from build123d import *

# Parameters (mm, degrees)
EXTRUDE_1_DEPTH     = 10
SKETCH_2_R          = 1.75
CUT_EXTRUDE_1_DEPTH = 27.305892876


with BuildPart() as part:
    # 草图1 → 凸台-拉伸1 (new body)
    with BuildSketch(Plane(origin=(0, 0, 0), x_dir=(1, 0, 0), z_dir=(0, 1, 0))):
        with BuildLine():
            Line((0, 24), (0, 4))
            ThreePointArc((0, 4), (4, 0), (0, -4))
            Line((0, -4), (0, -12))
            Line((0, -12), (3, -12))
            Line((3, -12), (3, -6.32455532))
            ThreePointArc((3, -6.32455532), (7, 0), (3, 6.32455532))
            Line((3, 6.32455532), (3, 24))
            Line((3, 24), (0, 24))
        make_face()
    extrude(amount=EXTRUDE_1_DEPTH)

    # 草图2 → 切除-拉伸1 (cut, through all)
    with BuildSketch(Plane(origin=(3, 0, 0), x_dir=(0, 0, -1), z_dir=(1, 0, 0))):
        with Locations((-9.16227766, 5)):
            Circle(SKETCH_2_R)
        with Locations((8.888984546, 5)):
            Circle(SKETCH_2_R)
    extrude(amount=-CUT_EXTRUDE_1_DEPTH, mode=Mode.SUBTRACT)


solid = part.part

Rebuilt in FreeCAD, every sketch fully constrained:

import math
import FreeCAD as App
import Part
import Sketcher
Q = App.Units.Quantity

doc = App.newDocument("Part")
body = doc.addObject("PartDesign::Body", "Body")

sketch1 = body.newObject("Sketcher::SketchObject", "Sketch")
sketch1.AttachmentSupport = (doc.getObject("XZ_Plane"), [""])
sketch1.MapMode = "FlatFace"
sketch1.addGeometry([
    Part.LineSegment(App.Vector(0, -24, 0), App.Vector(0, -4, 0)),
    Part.ArcOfCircle(Part.Circle(App.Vector(0, 0, 0), App.Vector(0, 0, 1), 4), math.radians(-90), math.radians(90)),
    Part.LineSegment(App.Vector(0, 4, 0), App.Vector(0, 12, 0)),
    Part.LineSegment(App.Vector(0, 12, 0), App.Vector(3, 12, 0)),
    Part.LineSegment(App.Vector(3, 12, 0), App.Vector(3, 6.3, 0)),
    Part.ArcOfCircle(Part.Circle(App.Vector(0, 0, 0), App.Vector(0, 0, 1), 7), math.radians(-65), math.radians(65)),
    Part.LineSegment(App.Vector(3, -6.3, 0), App.Vector(3, -24, 0)),
    Part.LineSegment(App.Vector(3, -24, 0), App.Vector(0, -24, 0)),
], False)
sketch1.addConstraint([
    Sketcher.Constraint("Coincident", 0, 2, 1, 1),
    Sketcher.Constraint("Coincident", 1, 2, 2, 1),
    Sketcher.Constraint("Coincident", 2, 2, 3, 1),
    Sketcher.Constraint("Coincident", 3, 2, 4, 1),
    Sketcher.Constraint("Coincident", 4, 2, 5, 2),
    Sketcher.Constraint("Coincident", 5, 1, 6, 1),
    Sketcher.Constraint("Coincident", 6, 2, 7, 1),
    Sketcher.Constraint("Coincident", 7, 2, 0, 1),
    Sketcher.Constraint("Vertical", 0),
    Sketcher.Constraint("Vertical", 2),
    Sketcher.Constraint("Horizontal", 3),
    Sketcher.Constraint("Vertical", 4),
    Sketcher.Constraint("Vertical", 6),
    Sketcher.Constraint("Horizontal", 7),
    Sketcher.Constraint("Coincident", 1, 3, -1, 1),
    Sketcher.Constraint("Coincident", 5, 3, -1, 1),
    Sketcher.Constraint("PointOnObject", 0, 2, -2),
    Sketcher.Constraint("PointOnObject", 1, 2, -2),
    Sketcher.Constraint("Vertical", 4, 2, 5, 1),
    Sketcher.Constraint("Radius", 1, Q("4 mm")),
    Sketcher.Constraint("Radius", 5, Q("7 mm")),
    Sketcher.Constraint("DistanceX", 3, 1, 3, 2, Q("3 mm")),
    Sketcher.Constraint("DistanceY", 0, 1, 0, 2, Q("20 mm")),
    Sketcher.Constraint("DistanceY", 2, 1, 2, 2, Q("8 mm")),
])
pad1 = body.newObject("PartDesign::Pad", "Pad")
pad1.Profile = sketch1
pad1.Length = 10
pad1.Reversed = True

sketch2 = body.newObject("Sketcher::SketchObject", "Sketch001")
sketch2.AttachmentSupport = (doc.getObject("YZ_Plane"), [""])
sketch2.MapMode = "FlatFace"
sketch2.AttachmentOffset = App.Placement(App.Vector(0, 0, 3), App.Rotation())
sketch2.addGeometry([
    Part.Circle(App.Vector(5, 9.2, 0), App.Vector(0, 0, 1), 1.8),
    Part.Circle(App.Vector(5, -8.9, 0), App.Vector(0, 0, 1), 1.8),
], False)
sketch2.addConstraint([
    Sketcher.Constraint("Equal", 0, 1),
    Sketcher.Constraint("Vertical", 0, 3, 1, 3),
    Sketcher.Constraint("Diameter", 0, Q("3.5 mm")),
    Sketcher.Constraint("DistanceX", -1, 1, 0, 3, Q("5 mm")),
    Sketcher.Constraint("DistanceY", -1, 1, 0, 3, Q("9.162278 mm")),
    Sketcher.Constraint("DistanceY", 1, 3, -1, 1, Q("8.888985 mm")),
])
pocket1 = body.newObject("PartDesign::Pocket", "Pocket")
pocket1.Profile = sketch2
pocket1.Type = "ThroughAll"

doc.recompute()
